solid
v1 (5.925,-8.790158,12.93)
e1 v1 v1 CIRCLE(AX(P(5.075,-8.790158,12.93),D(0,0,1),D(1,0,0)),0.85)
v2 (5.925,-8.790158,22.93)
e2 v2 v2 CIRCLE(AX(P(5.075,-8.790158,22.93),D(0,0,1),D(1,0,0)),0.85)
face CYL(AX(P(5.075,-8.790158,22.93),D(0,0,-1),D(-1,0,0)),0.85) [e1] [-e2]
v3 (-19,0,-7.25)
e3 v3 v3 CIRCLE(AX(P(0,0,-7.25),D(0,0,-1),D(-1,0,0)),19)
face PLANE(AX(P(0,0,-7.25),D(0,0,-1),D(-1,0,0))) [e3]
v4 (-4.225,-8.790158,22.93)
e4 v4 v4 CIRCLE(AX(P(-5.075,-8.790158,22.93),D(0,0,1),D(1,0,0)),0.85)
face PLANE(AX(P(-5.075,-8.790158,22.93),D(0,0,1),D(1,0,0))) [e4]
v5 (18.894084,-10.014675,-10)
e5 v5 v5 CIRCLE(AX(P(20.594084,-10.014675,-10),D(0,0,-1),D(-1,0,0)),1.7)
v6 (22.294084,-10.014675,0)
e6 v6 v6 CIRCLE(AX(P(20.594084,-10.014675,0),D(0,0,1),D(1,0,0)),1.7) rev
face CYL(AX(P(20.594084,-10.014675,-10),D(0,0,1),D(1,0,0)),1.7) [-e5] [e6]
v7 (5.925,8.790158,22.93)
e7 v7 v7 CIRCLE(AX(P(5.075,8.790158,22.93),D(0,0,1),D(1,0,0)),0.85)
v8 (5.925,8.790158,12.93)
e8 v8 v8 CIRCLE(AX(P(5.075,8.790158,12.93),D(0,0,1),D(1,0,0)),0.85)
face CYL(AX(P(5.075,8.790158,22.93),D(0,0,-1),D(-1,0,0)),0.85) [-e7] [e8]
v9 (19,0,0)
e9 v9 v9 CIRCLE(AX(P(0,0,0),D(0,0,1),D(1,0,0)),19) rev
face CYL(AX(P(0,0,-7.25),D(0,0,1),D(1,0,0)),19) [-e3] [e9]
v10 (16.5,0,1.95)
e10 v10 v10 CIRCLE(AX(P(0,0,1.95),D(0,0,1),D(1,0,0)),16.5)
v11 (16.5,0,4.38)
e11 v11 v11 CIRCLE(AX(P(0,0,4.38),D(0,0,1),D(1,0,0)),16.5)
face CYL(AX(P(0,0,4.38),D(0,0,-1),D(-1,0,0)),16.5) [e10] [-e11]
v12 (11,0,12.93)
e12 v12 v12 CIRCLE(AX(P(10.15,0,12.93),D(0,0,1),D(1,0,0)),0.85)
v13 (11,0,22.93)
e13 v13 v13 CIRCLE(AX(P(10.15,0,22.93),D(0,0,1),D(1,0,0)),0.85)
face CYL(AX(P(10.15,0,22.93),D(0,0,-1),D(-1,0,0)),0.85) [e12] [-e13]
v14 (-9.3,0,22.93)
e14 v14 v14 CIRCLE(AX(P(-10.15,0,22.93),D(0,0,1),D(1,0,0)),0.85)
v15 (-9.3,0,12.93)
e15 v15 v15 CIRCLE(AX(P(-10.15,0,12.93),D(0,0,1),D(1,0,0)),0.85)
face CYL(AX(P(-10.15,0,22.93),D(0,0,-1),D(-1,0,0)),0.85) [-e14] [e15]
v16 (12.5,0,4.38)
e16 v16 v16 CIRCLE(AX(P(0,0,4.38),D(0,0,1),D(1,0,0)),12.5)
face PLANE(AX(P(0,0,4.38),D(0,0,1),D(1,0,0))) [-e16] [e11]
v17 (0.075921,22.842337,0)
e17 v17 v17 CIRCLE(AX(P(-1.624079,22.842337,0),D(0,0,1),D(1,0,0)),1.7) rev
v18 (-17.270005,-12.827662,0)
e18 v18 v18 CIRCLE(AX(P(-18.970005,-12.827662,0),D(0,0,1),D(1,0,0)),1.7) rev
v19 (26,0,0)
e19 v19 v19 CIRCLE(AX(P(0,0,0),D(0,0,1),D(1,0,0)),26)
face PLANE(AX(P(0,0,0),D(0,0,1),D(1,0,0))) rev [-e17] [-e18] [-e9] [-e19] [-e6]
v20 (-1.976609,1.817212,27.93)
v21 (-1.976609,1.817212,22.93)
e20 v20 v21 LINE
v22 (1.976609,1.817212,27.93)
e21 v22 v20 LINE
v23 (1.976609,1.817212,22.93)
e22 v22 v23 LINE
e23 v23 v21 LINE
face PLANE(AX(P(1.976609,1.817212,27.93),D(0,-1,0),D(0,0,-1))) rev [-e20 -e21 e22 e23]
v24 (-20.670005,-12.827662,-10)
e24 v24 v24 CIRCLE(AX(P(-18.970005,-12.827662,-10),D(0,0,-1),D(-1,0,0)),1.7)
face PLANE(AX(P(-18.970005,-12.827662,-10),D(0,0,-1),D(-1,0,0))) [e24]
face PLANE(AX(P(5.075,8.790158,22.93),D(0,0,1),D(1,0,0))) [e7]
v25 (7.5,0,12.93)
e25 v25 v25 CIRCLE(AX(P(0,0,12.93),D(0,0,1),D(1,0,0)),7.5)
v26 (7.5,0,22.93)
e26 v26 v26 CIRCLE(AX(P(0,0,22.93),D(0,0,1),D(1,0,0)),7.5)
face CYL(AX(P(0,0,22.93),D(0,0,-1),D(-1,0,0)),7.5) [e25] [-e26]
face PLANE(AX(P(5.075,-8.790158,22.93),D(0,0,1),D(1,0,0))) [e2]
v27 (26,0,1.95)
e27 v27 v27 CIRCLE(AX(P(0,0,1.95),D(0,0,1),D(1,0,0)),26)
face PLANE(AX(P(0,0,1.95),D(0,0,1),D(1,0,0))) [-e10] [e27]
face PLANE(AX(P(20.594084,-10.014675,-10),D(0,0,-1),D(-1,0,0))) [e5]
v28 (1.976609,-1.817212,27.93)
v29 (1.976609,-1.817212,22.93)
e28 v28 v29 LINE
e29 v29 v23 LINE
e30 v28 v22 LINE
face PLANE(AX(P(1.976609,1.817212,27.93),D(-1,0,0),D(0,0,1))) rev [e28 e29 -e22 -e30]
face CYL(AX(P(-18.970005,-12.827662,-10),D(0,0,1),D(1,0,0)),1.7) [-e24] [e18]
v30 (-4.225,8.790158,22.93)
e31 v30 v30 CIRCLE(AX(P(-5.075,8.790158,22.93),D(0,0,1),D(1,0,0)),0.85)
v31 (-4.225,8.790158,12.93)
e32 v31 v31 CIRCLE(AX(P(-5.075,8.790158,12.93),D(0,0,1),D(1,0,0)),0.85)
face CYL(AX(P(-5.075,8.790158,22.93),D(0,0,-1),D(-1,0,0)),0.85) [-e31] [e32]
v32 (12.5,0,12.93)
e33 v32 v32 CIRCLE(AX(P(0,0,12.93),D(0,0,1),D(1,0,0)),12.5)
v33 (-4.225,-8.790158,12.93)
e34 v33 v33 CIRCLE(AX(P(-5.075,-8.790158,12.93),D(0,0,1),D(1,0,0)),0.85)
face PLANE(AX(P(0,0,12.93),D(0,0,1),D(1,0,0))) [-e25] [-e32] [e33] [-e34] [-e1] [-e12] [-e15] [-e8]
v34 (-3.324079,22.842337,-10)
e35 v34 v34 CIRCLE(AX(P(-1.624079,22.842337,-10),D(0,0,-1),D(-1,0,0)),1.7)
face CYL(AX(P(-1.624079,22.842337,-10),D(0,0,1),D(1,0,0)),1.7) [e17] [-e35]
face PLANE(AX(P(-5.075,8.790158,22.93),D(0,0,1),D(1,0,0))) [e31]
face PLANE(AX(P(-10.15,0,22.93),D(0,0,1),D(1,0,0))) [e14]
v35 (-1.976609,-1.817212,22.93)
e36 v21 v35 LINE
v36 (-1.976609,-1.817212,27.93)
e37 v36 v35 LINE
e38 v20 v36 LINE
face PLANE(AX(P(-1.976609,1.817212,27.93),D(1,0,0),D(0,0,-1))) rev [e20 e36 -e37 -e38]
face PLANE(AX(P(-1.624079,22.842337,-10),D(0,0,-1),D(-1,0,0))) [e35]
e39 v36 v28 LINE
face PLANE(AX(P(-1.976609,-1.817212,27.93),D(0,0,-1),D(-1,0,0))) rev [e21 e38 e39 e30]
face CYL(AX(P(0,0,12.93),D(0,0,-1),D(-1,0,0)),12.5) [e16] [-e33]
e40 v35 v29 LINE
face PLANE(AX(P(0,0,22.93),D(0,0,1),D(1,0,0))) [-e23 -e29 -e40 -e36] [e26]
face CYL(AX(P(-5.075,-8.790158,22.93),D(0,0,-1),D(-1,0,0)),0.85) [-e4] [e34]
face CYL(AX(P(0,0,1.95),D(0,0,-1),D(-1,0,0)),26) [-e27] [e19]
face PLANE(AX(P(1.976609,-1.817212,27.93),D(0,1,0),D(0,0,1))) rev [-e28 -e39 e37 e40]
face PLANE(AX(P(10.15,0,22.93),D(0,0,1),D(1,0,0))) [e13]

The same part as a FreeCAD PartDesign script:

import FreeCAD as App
import Part
import Sketcher

V = App.Vector
Q = App.Units.Quantity


def add_polygon(sketch, points):
    """Adds a closed chain of lines whose ends are joined by coincident constraints."""
    first, n = sketch.GeometryCount, len(points)
    for a, b in zip(points, points[1:] + points[:1]):
        sketch.addGeometry(Part.LineSegment(App.Vector(*a, 0), App.Vector(*b, 0)), False)
    for i in range(n):
        sketch.addConstraint(Sketcher.Constraint("Coincident", first + i, 2, first + (i + 1) % n, 1))

doc = App.newDocument("Part")
body = doc.addObject("PartDesign::Body", "Body")

# Sketch on XY plane
sketch1 = body.newObject("Sketcher::SketchObject", "Sketch")
sketch1.AttachmentSupport = (doc.getObject("XY_Plane"), [""])
sketch1.MapMode = "FlatFace"
sketch1.addGeometry(Part.Circle(V(0, 0, 0), V(0, 0, 1), 26), False)
sketch1.addConstraint([
    Sketcher.Constraint("Coincident", 0, 3, -1, 1),
    Sketcher.Constraint("Diameter", 0, Q("52 mm")),
])
pad1 = body.newObject("PartDesign::Pad", "Pad")
pad1.Profile = sketch1
pad1.Length = 1.95

# Sketch on XY plane
sketch2 = body.newObject("Sketcher::SketchObject", "Sketch001")
sketch2.AttachmentSupport = (doc.getObject("XY_Plane"), [""])
sketch2.MapMode = "FlatFace"
sketch2.addGeometry(Part.Circle(V(0, 0, 0), V(0, 0, 1), 19), False)
sketch2.addConstraint([
    Sketcher.Constraint("Coincident", 0, 3, -1, 1),
    Sketcher.Constraint("Diameter", 0, Q("38 mm")),
])
pad2 = body.newObject("PartDesign::Pad", "Pad001")
pad2.Profile = sketch2
pad2.Length = 7.25
pad2.Reversed = True

# Sketch on XY plane
sketch3 = body.newObject("Sketcher::SketchObject", "Sketch002")
sketch3.AttachmentSupport = (doc.getObject("XY_Plane"), [""])
sketch3.MapMode = "FlatFace"
sketch3.AttachmentOffset = App.Placement(V(0, 0, 1.95), App.Rotation())
sketch3.addGeometry(Part.Circle(V(0, 0, 0), V(0, 0, 1), 16), False)
sketch3.addConstraint([
    Sketcher.Constraint("Coincident", 0, 3, -1, 1),
    Sketcher.Constraint("Diameter", 0, Q("33 mm")),
])
pad3 = body.newObject("PartDesign::Pad", "Pad002")
pad3.Profile = sketch3
pad3.Length = 2.43

# Sketch on XY plane
sketch4 = body.newObject("Sketcher::SketchObject", "Sketch003")
sketch4.AttachmentSupport = (doc.getObject("XY_Plane"), [""])
sketch4.MapMode = "FlatFace"
sketch4.AttachmentOffset = App.Placement(V(0, 0, 4.38), App.Rotation())
sketch4.addGeometry(Part.Circle(V(0, 0, 0), V(0, 0, 1), 12), False)
sketch4.addConstraint([
    Sketcher.Constraint("Coincident", 0, 3, -1, 1),
    Sketcher.Constraint("Diameter", 0, Q("25 mm")),
])
pad4 = body.newObject("PartDesign::Pad", "Pad003")
pad4.Profile = sketch4
pad4.Length = 8.55

# Sketch on XY plane
sketch5 = body.newObject("Sketcher::SketchObject", "Sketch004")
sketch5.AttachmentSupport = (doc.getObject("XY_Plane"), [""])
sketch5.MapMode = "FlatFace"
sketch5.AttachmentOffset = App.Placement(V(0, 0, 12.93), App.Rotation())
sketch5.addGeometry(Part.Circle(V(0, 0, 0), V(0, 0, 1), 8), False)
sketch5.addConstraint([
    Sketcher.Constraint("Coincident", 0, 3, -1, 1),
    Sketcher.Constraint("Diameter", 0, Q("15 mm")),
])
pad5 = body.newObject("PartDesign::Pad", "Pad004")
pad5.Profile = sketch5
pad5.Length = 10

# Sketch on XY plane
sketch6 = body.newObject("Sketcher::SketchObject", "Sketch005")
sketch6.AttachmentSupport = (doc.getObject("XY_Plane"), [""])
sketch6.MapMode = "FlatFace"
sketch6.addGeometry([
    Part.Circle(V(-19, -12.8, 0), V(0, 0, 1), 1.7),
    Part.Circle(V(20.6, -10, 0), V(0, 0, 1), 1.7),
    Part.Circle(V(-1.6, 22.8, 0), V(0, 0, 1), 1.7),
], False)
sketch6.addConstraint([
    Sketcher.Constraint("Equal", 0, 1),
    Sketcher.Constraint("Equal", 1, 2),
    Sketcher.Constraint("Diameter", 0, Q("3.4 mm")),
    Sketcher.Constraint("DistanceY", 0, 3, 2, 3, Q("35.67 mm")),
    Sketcher.Constraint("DistanceX", 2, 3, -1, 1, Q("1.624079 mm")),
    Sketcher.Constraint("DistanceX", 0, 3, 1, 3, Q("39.564089 mm")),
    Sketcher.Constraint("DistanceY", 1, 3, 2, 3, Q("32.857012 mm")),
    Sketcher.Constraint("DistanceX", 0, 3, -1, 1, Q("18.970005 mm")),
    Sketcher.Constraint("DistanceY", 0, 3, -1, 1, Q("12.827662 mm")),
])
pad6 = body.newObject("PartDesign::Pad", "Pad005")
pad6.Profile = sketch6
pad6.Length = 10
pad6.Reversed = True

# Sketch on XY plane
sketch7 = body.newObject("Sketcher::SketchObject", "Sketch006")
sketch7.AttachmentSupport = (doc.getObject("XY_Plane"), [""])
sketch7.MapMode = "FlatFace"
sketch7.AttachmentOffset = App.Placement(V(0, 0, 12.93), App.Rotation())
sketch7.addGeometry([
    Part.Circle(V(-10.2, 0, 0), V(0, 0, 1), 0.8),  # 0
    Part.Circle(V(-5.1, 8.8, 0), V(0, 0, 1), 0.8),  # 1
    Part.Circle(V(5.1, 8.8, 0), V(0, 0, 1), 0.8),  # 2
    Part.Circle(V(10.2, 0, 0), V(0, 0, 1), 0.8),  # 3
    Part.Circle(V(5.1, -8.8, 0), V(0, 0, 1), 0.8),  # 4
    Part.Circle(V(-5.1, -8.8, 0), V(0, 0, 1), 0.8),  # 5
], False)
sketch7.addConstraint([
    Sketcher.Constraint("Equal", 0, 1),
    Sketcher.Constraint("Equal", 1, 2),
    Sketcher.Constraint("Equal", 2, 3),
    Sketcher.Constraint("Equal", 3, 4),
    Sketcher.Constraint("Equal", 4, 5),
    Sketcher.Constraint("Symmetric", 0, 3, 3, 3, -1, 1),
    Sketcher.Constraint("Symmetric", 1, 3, 4, 3, -1, 1),
    Sketcher.Constraint("Symmetric", 2, 3, 5, 3, -1, 1),
    Sketcher.Constraint("Symmetric", 1, 3, 2, 3, -2),
    Sketcher.Constraint("PointOnObject", 0, 3, -1),
    Sketcher.Constraint("Diameter", 0, Q("1.7 mm")),
    Sketcher.Constraint("DistanceX", 0, 3, 3, 3, Q("20.3 mm")),
    Sketcher.Constraint("DistanceX", 1, 3, 2, 3, Q("10.15 mm")),
    Sketcher.Constraint("DistanceY", -1, 1, 1, 3, Q("8.790158 mm")),
])
pad7 = body.newObject("PartDesign::Pad", "Pad006")
pad7.Profile = sketch7
pad7.Length = 10

# Sketch on XY plane
sketch8 = body.newObject("Sketcher::SketchObject", "Sketch007")
sketch8.AttachmentSupport = (doc.getObject("XY_Plane"), [""])
sketch8.MapMode = "FlatFace"
sketch8.AttachmentOffset = App.Placement(V(0, 0, 22.93), App.Rotation())
add_polygon(sketch8, [(-2, 1.8), (-2, -1.8), (2, -1.8), (2, 1.8)])  # lines 0-3
sketch8.addConstraint([
    Sketcher.Constraint("Vertical", 0),
    Sketcher.Constraint("Horizontal", 1),
    Sketcher.Constraint("Vertical", 2),
    Sketcher.Constraint("Horizontal", 3),
    Sketcher.Constraint("Symmetric", 0, 2, 2, 2, -1, 1),
    Sketcher.Constraint("DistanceX", 1, 1, 1, 2, Q("3.953217 mm")),
    Sketcher.Constraint("DistanceY", 0, 2, 0, 1, Q("3.634424 mm")),
])
pad8 = body.newObject("PartDesign::Pad", "Pad007")
pad8.Profile = sketch8
pad8.Length = 5

doc.recompute()
